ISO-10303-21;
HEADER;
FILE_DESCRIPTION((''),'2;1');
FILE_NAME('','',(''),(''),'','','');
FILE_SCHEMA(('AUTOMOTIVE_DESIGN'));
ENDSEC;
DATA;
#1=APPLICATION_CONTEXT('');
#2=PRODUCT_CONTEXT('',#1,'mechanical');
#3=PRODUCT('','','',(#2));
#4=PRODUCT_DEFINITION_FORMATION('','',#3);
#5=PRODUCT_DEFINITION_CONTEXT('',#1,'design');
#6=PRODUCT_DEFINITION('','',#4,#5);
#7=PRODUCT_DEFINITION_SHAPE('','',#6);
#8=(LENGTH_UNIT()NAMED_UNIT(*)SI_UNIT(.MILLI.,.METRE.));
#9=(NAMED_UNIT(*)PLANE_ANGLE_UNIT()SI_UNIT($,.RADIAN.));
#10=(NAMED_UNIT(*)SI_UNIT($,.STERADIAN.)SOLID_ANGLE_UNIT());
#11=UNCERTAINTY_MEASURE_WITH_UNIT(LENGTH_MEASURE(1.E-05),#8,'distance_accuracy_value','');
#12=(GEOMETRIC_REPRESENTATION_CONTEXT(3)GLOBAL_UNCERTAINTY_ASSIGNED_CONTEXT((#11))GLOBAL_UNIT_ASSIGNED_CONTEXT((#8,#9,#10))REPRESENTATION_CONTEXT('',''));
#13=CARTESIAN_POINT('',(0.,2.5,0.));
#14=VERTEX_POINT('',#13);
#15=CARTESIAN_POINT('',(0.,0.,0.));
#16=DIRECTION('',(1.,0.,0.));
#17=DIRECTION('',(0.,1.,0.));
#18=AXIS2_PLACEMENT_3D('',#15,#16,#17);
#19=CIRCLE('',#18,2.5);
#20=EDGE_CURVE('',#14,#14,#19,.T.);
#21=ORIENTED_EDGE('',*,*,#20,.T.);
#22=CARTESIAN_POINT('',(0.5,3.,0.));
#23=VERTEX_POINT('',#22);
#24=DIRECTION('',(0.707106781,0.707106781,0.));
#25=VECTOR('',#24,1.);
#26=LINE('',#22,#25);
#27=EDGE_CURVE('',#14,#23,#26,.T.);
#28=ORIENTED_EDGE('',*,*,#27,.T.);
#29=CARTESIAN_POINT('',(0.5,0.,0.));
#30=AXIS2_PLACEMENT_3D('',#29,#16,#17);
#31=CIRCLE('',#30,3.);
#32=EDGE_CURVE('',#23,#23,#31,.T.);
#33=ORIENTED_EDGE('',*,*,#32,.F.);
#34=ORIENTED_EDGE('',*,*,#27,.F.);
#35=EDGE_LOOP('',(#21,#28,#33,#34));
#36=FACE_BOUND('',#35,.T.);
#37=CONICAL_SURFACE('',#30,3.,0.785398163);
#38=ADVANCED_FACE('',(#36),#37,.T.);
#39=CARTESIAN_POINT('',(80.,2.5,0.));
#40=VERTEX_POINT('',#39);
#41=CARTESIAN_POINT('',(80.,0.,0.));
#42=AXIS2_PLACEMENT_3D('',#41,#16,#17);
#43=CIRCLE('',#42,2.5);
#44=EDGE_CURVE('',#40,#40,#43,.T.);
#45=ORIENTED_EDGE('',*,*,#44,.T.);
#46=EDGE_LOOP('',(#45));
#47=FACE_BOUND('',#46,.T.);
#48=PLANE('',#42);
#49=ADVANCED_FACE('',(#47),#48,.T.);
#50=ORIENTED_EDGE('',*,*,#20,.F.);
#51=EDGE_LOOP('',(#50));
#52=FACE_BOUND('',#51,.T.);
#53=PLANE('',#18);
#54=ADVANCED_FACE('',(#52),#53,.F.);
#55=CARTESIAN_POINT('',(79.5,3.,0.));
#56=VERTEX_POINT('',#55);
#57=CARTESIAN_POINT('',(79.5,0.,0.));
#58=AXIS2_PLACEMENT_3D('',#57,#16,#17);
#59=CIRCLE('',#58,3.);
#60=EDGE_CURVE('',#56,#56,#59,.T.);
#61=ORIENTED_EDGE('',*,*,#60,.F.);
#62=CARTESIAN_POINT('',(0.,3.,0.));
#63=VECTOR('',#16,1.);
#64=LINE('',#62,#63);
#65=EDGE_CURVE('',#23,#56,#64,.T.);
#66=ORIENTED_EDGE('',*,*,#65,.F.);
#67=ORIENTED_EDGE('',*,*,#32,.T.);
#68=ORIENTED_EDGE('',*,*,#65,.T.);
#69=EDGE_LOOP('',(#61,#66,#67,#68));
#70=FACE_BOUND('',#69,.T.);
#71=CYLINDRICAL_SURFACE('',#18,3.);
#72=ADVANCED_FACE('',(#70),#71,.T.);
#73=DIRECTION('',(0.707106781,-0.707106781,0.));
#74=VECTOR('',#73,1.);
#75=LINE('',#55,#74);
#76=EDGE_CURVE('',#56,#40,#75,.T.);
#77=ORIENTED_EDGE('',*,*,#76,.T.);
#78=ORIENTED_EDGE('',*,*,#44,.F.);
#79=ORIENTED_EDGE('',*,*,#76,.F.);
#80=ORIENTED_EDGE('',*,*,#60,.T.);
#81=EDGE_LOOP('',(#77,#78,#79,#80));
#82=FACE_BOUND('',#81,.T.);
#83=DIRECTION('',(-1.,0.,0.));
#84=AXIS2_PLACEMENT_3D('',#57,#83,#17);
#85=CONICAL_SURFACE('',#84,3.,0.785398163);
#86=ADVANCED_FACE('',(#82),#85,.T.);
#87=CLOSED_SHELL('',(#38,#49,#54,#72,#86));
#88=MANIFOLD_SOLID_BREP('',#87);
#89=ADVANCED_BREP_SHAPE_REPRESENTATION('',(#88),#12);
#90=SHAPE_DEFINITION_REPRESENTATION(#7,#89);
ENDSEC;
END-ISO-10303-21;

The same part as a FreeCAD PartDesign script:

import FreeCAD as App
import Part
import Sketcher
Q = App.Units.Quantity


def edges_at(feature, points):
    """Names of the edges that pass closest to the given points."""
    edges = feature.Shape.Edges
    near = lambda p: min(range(len(edges)), key=lambda i: edges[i].distToShape(Part.Vertex(*p))[0])
    return sorted({f"Edge{near(p) + 1}" for p in points})

doc = App.newDocument("Part")
body = doc.addObject("PartDesign::Body", "Body")

# Sketch on XY plane
sketch1 = doc.addObject("Sketcher::SketchObject", "Sketch")
body.addObject(sketch1)
sketch1.AttachmentSupport = (doc.XY_Plane, [""])
sketch1.MapMode = "FlatFace"
sketch1.addGeometry([
    Part.LineSegment(App.Vector(0, 3, 0), App.Vector(0, 0, 0)),
    Part.LineSegment(App.Vector(0, 0, 0), App.Vector(80, 0, 0)),
    Part.LineSegment(App.Vector(80, 0, 0), App.Vector(80, 3, 0)),
    Part.LineSegment(App.Vector(80, 3, 0), App.Vector(0, 3, 0)),
], False)
sketch1.addConstraint([
    Sketcher.Constraint("Coincident", 0, 2, 1, 1),
    Sketcher.Constraint("Coincident", 1, 2, 2, 1),
    Sketcher.Constraint("Coincident", 2, 2, 3, 1),
    Sketcher.Constraint("Coincident", 3, 2, 0, 1),
    Sketcher.Constraint("Vertical", 0),
    Sketcher.Constraint("Horizontal", 1),
    Sketcher.Constraint("Vertical", 2),
    Sketcher.Constraint("Horizontal", 3),
    Sketcher.Constraint("Coincident", 0, 2, -1, 1),
    Sketcher.Constraint("DistanceX", 1, 1, 1, 2, Q("80 mm")),
    Sketcher.Constraint("DistanceY", 0, 2, 0, 1, Q("3 mm")),
])
revolution = doc.addObject("PartDesign::Revolution", "Revolution")
body.addObject(revolution)
revolution.Profile = sketch1
revolution.ReferenceAxis = (sketch1, ["H_Axis"])
revolution.Angle = 360
doc.recompute()

chamfer = doc.addObject("PartDesign::Chamfer", "Chamfer")
body.addObject(chamfer)
chamfer.Base = (revolution, edges_at(revolution, [(0, -3, 0)]))
chamfer.Size = 0.5
doc.recompute()

chamfer2 = doc.addObject("PartDesign::Chamfer", "Chamfer001")
body.addObject(chamfer2)
chamfer2.Base = (chamfer, edges_at(chamfer, [(80, -3, 0)]))
chamfer2.Size = 0.5

doc.recompute()
